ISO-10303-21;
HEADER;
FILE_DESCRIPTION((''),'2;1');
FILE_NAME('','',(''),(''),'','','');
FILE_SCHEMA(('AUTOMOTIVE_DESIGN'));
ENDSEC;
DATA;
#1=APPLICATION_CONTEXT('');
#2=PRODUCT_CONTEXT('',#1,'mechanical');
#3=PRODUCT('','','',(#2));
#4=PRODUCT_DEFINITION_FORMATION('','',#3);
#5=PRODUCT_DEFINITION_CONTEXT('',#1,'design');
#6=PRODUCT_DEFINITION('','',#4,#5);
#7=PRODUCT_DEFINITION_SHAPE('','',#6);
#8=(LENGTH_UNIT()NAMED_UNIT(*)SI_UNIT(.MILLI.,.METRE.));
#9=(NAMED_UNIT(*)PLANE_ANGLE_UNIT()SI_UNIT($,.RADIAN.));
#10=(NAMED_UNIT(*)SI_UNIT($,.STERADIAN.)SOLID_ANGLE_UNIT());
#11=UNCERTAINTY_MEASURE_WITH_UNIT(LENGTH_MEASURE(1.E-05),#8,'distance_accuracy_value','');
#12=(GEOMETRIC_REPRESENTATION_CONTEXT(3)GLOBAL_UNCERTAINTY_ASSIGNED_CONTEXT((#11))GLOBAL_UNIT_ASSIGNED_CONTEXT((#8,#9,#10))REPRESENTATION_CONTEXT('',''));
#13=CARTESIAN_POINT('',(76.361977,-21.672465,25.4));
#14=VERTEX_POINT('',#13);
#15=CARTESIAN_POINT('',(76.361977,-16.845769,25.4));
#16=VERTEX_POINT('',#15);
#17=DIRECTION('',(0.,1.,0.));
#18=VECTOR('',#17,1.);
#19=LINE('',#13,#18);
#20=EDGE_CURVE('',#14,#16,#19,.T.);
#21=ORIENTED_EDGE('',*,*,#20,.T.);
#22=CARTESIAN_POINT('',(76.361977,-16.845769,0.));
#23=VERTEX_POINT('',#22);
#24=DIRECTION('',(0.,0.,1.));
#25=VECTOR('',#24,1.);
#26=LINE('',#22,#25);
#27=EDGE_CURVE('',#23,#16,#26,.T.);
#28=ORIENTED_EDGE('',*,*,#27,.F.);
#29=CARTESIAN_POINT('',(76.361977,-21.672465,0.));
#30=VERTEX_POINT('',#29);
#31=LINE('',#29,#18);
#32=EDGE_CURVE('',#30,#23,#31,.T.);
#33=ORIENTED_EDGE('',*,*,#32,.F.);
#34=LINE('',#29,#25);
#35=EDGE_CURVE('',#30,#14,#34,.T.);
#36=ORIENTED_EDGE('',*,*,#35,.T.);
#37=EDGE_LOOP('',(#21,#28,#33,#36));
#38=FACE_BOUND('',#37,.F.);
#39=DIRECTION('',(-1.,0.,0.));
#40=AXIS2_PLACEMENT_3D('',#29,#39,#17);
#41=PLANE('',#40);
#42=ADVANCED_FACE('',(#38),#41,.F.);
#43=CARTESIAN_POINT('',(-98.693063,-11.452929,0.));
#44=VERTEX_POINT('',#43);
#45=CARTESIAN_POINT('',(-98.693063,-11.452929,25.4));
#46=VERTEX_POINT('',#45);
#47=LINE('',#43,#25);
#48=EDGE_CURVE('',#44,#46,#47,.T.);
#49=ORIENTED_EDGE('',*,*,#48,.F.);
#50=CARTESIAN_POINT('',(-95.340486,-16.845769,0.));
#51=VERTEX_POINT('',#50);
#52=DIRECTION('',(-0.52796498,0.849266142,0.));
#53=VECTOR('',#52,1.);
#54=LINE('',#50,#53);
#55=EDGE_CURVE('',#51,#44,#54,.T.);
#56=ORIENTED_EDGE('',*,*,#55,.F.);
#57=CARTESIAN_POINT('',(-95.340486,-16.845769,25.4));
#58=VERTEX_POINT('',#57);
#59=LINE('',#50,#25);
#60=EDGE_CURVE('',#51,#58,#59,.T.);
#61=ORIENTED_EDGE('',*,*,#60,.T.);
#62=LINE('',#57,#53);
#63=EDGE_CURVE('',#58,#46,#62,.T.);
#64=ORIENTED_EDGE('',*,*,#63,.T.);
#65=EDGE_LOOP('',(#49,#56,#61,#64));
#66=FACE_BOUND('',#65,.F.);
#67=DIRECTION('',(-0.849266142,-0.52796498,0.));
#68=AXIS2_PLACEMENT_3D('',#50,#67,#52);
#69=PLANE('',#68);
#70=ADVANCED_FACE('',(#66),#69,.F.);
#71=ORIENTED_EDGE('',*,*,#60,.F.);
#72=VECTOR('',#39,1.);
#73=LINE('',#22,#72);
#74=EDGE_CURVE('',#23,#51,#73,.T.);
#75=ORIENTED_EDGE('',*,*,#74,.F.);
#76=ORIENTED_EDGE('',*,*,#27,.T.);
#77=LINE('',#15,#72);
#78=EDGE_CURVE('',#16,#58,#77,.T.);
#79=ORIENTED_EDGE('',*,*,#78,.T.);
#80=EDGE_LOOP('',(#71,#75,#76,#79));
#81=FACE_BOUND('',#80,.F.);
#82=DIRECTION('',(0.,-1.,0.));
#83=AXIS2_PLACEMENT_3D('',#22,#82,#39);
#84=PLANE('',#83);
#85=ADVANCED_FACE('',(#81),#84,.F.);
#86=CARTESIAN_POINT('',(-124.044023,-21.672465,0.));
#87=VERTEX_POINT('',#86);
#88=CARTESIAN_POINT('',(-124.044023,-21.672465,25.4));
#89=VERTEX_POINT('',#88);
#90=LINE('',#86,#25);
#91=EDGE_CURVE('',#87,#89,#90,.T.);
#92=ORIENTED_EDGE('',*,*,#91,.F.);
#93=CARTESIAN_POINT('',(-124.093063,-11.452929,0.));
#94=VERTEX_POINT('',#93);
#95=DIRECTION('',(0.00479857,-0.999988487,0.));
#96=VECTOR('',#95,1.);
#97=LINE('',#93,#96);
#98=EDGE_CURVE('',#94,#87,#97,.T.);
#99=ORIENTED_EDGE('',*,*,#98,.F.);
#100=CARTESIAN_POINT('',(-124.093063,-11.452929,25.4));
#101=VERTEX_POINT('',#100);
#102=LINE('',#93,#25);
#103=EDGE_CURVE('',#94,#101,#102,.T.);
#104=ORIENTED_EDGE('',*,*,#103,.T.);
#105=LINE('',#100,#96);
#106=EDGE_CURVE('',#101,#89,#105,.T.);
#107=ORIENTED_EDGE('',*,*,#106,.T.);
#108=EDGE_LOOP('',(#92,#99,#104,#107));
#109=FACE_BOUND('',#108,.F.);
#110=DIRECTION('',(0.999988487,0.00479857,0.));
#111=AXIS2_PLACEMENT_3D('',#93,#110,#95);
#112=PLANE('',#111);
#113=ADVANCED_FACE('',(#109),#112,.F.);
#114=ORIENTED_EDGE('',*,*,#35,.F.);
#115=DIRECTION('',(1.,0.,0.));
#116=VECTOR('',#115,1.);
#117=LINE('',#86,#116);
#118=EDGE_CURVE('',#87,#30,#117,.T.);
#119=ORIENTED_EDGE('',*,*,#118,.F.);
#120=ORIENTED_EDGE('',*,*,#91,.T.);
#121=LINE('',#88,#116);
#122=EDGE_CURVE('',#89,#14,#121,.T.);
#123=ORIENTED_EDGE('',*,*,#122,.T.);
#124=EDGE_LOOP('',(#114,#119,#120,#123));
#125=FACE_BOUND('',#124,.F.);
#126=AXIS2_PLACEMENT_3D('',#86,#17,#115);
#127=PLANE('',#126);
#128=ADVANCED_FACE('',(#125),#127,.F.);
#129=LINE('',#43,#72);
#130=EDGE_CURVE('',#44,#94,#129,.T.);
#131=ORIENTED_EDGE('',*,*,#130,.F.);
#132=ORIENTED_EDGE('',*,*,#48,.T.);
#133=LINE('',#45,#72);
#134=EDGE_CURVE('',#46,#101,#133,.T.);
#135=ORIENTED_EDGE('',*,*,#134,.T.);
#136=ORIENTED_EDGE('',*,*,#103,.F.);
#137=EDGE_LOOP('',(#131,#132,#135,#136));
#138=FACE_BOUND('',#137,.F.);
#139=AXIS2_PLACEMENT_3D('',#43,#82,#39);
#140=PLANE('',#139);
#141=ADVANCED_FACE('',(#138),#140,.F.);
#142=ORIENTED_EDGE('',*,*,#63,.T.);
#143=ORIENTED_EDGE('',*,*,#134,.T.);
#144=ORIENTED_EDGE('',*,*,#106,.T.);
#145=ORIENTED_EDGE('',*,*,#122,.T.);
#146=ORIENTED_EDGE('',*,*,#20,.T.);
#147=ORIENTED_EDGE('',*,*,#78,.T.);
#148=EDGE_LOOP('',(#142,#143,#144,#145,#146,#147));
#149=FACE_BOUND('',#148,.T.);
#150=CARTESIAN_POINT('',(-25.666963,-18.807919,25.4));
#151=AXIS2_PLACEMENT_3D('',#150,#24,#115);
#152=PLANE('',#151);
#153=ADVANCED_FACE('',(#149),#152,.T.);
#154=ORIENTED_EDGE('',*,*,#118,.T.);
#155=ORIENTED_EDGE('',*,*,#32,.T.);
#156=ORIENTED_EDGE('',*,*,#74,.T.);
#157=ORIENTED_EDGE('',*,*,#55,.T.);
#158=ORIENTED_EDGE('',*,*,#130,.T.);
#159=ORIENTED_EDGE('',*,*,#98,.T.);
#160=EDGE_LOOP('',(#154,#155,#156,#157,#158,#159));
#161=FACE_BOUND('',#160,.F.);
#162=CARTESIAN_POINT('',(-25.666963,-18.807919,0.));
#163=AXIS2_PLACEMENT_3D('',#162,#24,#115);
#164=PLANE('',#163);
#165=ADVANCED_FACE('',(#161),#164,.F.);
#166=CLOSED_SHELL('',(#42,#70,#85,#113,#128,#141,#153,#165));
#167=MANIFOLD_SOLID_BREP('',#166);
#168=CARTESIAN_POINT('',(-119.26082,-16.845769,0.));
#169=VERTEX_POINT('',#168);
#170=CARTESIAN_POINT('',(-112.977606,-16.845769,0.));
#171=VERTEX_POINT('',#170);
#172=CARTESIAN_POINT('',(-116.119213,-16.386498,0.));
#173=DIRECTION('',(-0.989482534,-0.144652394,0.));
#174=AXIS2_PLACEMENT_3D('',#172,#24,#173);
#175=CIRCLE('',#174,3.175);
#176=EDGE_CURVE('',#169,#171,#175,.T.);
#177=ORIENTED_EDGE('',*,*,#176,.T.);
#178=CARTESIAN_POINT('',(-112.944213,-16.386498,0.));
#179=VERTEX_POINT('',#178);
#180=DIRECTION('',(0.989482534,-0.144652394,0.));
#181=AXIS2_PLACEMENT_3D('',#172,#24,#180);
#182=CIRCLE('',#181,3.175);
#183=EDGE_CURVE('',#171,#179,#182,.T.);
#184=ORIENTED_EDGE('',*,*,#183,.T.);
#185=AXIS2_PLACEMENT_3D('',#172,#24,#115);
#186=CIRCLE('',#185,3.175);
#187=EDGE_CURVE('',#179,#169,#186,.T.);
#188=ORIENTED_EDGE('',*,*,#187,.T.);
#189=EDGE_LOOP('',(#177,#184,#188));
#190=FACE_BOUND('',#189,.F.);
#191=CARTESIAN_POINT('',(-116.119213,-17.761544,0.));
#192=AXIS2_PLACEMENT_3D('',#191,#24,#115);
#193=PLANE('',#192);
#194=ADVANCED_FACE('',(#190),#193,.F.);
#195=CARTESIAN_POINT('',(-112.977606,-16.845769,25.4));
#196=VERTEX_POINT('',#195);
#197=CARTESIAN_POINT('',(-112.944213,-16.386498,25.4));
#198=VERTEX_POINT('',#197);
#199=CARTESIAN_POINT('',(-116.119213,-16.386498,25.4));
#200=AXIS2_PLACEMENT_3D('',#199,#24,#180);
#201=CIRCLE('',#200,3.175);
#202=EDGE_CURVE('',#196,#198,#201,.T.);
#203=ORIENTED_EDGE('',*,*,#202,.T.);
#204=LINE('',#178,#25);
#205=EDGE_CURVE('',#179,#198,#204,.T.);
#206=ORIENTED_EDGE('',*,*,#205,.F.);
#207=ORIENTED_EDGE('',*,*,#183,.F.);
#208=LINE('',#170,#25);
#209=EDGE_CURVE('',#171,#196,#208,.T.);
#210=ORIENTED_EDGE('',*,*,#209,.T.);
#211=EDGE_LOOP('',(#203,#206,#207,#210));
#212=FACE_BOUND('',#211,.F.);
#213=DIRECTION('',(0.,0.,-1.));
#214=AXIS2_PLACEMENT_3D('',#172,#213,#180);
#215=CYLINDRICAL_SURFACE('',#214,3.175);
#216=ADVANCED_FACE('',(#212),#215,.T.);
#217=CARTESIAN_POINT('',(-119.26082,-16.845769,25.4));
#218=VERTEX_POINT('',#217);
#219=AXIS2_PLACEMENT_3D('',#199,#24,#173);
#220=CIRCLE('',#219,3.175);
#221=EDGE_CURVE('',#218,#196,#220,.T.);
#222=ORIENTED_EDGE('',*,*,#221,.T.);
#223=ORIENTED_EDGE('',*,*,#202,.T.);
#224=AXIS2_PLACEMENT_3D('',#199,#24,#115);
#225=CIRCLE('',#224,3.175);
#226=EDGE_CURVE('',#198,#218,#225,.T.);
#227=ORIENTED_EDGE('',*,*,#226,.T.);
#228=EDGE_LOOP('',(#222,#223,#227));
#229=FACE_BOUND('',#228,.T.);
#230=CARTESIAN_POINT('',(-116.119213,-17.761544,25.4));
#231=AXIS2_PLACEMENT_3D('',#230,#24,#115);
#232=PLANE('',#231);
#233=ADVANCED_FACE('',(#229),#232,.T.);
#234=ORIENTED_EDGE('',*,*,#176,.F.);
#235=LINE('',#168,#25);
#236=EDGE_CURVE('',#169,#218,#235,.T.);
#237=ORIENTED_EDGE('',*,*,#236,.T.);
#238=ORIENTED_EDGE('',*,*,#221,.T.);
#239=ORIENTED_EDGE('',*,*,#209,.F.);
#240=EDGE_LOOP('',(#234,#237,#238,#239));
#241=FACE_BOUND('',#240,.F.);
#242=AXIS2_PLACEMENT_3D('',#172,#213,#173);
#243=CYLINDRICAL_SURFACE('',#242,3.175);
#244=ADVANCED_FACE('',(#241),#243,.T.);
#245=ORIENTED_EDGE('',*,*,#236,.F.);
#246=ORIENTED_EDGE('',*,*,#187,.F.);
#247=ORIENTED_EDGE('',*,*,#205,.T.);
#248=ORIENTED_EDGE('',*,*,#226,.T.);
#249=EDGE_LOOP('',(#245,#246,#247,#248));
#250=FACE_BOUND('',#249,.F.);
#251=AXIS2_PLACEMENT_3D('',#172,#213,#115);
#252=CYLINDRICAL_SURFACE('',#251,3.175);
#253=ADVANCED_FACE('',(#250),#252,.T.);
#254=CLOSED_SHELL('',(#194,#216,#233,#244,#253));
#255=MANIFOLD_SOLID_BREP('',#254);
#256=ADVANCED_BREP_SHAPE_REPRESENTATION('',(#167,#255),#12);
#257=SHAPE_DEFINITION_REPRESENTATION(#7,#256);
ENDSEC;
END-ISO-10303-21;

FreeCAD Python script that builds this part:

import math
import FreeCAD as App
import Part
import Sketcher
from FreeCAD import Vector
Q = App.Units.Quantity

doc = App.newDocument("Part")
params = doc.addObject("Spreadsheet::Sheet", "Params")
for row, (alias, value) in enumerate([
    ("sketch1_width", "1 in"),
    ("sketch1_width2", "7.89 in"),
    ("sketch1_length", "0.25 in"),
    ("pad1_length", "1 in"),
    ("sketch2_radius", "0.125 in"),
    ("pad2_length", "1 in"),
], start=1):
    params.set(f"A{row}", alias)
    params.set(f"B{row}", "=" + value)
    params.setAlias(f"B{row}", alias)

body = doc.addObject("PartDesign::Body", "Body")

sketch1 = doc.addObject("Sketcher::SketchObject", "Sketch")
body.addObject(sketch1)
sketch1.AttachmentSupport = (doc.XY_Plane, [""])
sketch1.MapMode = "FlatFace"
sketch1.addGeometry(Part.LineSegment(Vector(-124.1, -11.5, 0), Vector(-124, -21.7, 0)), False)
sketch1.addGeometry(Part.LineSegment(Vector(-124, -21.7, 0), Vector(76.4, -21.7, 0)), False)
sketch1.addGeometry(Part.LineSegment(Vector(76.4, -21.7, 0), Vector(76.4, -16.8, 0)), False)
sketch1.addGeometry(Part.LineSegment(Vector(76.4, -16.8, 0), Vector(-95.3, -16.8, 0)), False)
sketch1.addGeometry(Part.LineSegment(Vector(-95.3, -16.8, 0), Vector(-98.7, -11.5, 0)), False)
sketch1.addGeometry(Part.LineSegment(Vector(-98.7, -11.5, 0), Vector(-124.1, -11.5, 0)), False)
sketch1.addConstraint(Sketcher.Constraint("Coincident", 0, 2, 1, 1))
sketch1.addConstraint(Sketcher.Constraint("Coincident", 1, 2, 2, 1))
sketch1.addConstraint(Sketcher.Constraint("Coincident", 2, 2, 3, 1))
sketch1.addConstraint(Sketcher.Constraint("Coincident", 3, 2, 4, 1))
sketch1.addConstraint(Sketcher.Constraint("Coincident", 4, 2, 5, 1))
sketch1.addConstraint(Sketcher.Constraint("Coincident", 5, 2, 0, 1))
sketch1.addConstraint(Sketcher.Constraint("Horizontal", 1))
sketch1.addConstraint(Sketcher.Constraint("Vertical", 2))
sketch1.addConstraint(Sketcher.Constraint("Horizontal", 3))
sketch1.addConstraint(Sketcher.Constraint("Horizontal", 5))
sketch1.addConstraint(Sketcher.Constraint("DistanceX", 5, 2, 5, 1, Q("1 in")))
sketch1.addConstraint(Sketcher.Constraint("DistanceX", 1, 1, 1, 2, Q("7.89 in")))
sketch1.addConstraint(Sketcher.Constraint("Distance", 4, Q("0.25 in")))
sketch1.addConstraint(Sketcher.Constraint("DistanceX", 3, 2, 3, 1, Q("171.702462 mm")))
sketch1.addConstraint(Sketcher.Constraint("DistanceY", 2, 1, 2, 2, Q("4.826696 mm")))
sketch1.addConstraint(Sketcher.Constraint("DistanceY", 2, 2, -1, 1, Q("16.845769 mm")))
sketch1.addConstraint(Sketcher.Constraint("DistanceY", 4, 2, -1, 1, Q("11.452929 mm")))
sketch1.addConstraint(Sketcher.Constraint("DistanceX", 0, 2, -1, 1, Q("124.044023 mm")))
sketch1.setExpression("Constraints[10]", "Params.sketch1_width")
sketch1.setExpression("Constraints[11]", "Params.sketch1_width2")
sketch1.setExpression("Constraints[12]", "Params.sketch1_length")
pad1 = doc.addObject("PartDesign::Pad", "Pad")
body.addObject(pad1)
pad1.Profile = sketch1
pad1.setExpression("Length", "Params.pad1_length")
body2 = doc.addObject("PartDesign::Body", "Body001")

sketch2 = doc.addObject("Sketcher::SketchObject", "Sketch001")
body2.addObject(sketch2)
sketch2.AttachmentSupport = (doc.getObject("XY_Plane001"), [""])
sketch2.MapMode = "FlatFace"
sketch2.addGeometry(Part.ArcOfCircle(Part.Circle(Vector(-116.12, -16.39, 0), Vector(0, 0, 1), 3.17), math.radians(-172), math.radians(-8)), False)
sketch2.addGeometry(Part.ArcOfCircle(Part.Circle(Vector(-116.12, -16.39, 0), Vector(0, 0, 1), 3.17), math.radians(-8.32), math.radians(0)), False)
sketch2.addGeometry(Part.ArcOfCircle(Part.Circle(Vector(-116.12, -16.39, 0), Vector(0, 0, 1), 3.17), math.radians(0), math.radians(188)), False)
sketch2.addConstraint(Sketcher.Constraint("Tangent", 0, 2, 1, 1))
sketch2.addConstraint(Sketcher.Constraint("Tangent", 1, 2, 2, 1))
sketch2.addConstraint(Sketcher.Constraint("Tangent", 2, 2, 0, 1))
sketch2.addConstraint(Sketcher.Constraint("Horizontal", 2, 3, 1, 2))
sketch2.addConstraint(Sketcher.Constraint("Horizontal", 0, 2, 2, 2))
sketch2.addConstraint(Sketcher.Constraint("Radius", 0, Q("0.125 in")))
sketch2.addConstraint(Sketcher.Constraint("DistanceY", 0, 2, -1, 1, Q("16.845769 mm")))
sketch2.addConstraint(Sketcher.Constraint("DistanceX", 2, 2, -1, 1, Q("119.26082 mm")))
sketch2.addConstraint(Sketcher.Constraint("DistanceY", 0, 2, 1, 3, Q("0.459271 mm")))
sketch2.setExpression("Constraints[5]", "Params.sketch2_radius")
pad2 = doc.addObject("PartDesign::Pad", "Pad001")
body2.addObject(pad2)
pad2.Profile = sketch2
pad2.setExpression("Length", "Params.pad2_length")

doc.recompute()
